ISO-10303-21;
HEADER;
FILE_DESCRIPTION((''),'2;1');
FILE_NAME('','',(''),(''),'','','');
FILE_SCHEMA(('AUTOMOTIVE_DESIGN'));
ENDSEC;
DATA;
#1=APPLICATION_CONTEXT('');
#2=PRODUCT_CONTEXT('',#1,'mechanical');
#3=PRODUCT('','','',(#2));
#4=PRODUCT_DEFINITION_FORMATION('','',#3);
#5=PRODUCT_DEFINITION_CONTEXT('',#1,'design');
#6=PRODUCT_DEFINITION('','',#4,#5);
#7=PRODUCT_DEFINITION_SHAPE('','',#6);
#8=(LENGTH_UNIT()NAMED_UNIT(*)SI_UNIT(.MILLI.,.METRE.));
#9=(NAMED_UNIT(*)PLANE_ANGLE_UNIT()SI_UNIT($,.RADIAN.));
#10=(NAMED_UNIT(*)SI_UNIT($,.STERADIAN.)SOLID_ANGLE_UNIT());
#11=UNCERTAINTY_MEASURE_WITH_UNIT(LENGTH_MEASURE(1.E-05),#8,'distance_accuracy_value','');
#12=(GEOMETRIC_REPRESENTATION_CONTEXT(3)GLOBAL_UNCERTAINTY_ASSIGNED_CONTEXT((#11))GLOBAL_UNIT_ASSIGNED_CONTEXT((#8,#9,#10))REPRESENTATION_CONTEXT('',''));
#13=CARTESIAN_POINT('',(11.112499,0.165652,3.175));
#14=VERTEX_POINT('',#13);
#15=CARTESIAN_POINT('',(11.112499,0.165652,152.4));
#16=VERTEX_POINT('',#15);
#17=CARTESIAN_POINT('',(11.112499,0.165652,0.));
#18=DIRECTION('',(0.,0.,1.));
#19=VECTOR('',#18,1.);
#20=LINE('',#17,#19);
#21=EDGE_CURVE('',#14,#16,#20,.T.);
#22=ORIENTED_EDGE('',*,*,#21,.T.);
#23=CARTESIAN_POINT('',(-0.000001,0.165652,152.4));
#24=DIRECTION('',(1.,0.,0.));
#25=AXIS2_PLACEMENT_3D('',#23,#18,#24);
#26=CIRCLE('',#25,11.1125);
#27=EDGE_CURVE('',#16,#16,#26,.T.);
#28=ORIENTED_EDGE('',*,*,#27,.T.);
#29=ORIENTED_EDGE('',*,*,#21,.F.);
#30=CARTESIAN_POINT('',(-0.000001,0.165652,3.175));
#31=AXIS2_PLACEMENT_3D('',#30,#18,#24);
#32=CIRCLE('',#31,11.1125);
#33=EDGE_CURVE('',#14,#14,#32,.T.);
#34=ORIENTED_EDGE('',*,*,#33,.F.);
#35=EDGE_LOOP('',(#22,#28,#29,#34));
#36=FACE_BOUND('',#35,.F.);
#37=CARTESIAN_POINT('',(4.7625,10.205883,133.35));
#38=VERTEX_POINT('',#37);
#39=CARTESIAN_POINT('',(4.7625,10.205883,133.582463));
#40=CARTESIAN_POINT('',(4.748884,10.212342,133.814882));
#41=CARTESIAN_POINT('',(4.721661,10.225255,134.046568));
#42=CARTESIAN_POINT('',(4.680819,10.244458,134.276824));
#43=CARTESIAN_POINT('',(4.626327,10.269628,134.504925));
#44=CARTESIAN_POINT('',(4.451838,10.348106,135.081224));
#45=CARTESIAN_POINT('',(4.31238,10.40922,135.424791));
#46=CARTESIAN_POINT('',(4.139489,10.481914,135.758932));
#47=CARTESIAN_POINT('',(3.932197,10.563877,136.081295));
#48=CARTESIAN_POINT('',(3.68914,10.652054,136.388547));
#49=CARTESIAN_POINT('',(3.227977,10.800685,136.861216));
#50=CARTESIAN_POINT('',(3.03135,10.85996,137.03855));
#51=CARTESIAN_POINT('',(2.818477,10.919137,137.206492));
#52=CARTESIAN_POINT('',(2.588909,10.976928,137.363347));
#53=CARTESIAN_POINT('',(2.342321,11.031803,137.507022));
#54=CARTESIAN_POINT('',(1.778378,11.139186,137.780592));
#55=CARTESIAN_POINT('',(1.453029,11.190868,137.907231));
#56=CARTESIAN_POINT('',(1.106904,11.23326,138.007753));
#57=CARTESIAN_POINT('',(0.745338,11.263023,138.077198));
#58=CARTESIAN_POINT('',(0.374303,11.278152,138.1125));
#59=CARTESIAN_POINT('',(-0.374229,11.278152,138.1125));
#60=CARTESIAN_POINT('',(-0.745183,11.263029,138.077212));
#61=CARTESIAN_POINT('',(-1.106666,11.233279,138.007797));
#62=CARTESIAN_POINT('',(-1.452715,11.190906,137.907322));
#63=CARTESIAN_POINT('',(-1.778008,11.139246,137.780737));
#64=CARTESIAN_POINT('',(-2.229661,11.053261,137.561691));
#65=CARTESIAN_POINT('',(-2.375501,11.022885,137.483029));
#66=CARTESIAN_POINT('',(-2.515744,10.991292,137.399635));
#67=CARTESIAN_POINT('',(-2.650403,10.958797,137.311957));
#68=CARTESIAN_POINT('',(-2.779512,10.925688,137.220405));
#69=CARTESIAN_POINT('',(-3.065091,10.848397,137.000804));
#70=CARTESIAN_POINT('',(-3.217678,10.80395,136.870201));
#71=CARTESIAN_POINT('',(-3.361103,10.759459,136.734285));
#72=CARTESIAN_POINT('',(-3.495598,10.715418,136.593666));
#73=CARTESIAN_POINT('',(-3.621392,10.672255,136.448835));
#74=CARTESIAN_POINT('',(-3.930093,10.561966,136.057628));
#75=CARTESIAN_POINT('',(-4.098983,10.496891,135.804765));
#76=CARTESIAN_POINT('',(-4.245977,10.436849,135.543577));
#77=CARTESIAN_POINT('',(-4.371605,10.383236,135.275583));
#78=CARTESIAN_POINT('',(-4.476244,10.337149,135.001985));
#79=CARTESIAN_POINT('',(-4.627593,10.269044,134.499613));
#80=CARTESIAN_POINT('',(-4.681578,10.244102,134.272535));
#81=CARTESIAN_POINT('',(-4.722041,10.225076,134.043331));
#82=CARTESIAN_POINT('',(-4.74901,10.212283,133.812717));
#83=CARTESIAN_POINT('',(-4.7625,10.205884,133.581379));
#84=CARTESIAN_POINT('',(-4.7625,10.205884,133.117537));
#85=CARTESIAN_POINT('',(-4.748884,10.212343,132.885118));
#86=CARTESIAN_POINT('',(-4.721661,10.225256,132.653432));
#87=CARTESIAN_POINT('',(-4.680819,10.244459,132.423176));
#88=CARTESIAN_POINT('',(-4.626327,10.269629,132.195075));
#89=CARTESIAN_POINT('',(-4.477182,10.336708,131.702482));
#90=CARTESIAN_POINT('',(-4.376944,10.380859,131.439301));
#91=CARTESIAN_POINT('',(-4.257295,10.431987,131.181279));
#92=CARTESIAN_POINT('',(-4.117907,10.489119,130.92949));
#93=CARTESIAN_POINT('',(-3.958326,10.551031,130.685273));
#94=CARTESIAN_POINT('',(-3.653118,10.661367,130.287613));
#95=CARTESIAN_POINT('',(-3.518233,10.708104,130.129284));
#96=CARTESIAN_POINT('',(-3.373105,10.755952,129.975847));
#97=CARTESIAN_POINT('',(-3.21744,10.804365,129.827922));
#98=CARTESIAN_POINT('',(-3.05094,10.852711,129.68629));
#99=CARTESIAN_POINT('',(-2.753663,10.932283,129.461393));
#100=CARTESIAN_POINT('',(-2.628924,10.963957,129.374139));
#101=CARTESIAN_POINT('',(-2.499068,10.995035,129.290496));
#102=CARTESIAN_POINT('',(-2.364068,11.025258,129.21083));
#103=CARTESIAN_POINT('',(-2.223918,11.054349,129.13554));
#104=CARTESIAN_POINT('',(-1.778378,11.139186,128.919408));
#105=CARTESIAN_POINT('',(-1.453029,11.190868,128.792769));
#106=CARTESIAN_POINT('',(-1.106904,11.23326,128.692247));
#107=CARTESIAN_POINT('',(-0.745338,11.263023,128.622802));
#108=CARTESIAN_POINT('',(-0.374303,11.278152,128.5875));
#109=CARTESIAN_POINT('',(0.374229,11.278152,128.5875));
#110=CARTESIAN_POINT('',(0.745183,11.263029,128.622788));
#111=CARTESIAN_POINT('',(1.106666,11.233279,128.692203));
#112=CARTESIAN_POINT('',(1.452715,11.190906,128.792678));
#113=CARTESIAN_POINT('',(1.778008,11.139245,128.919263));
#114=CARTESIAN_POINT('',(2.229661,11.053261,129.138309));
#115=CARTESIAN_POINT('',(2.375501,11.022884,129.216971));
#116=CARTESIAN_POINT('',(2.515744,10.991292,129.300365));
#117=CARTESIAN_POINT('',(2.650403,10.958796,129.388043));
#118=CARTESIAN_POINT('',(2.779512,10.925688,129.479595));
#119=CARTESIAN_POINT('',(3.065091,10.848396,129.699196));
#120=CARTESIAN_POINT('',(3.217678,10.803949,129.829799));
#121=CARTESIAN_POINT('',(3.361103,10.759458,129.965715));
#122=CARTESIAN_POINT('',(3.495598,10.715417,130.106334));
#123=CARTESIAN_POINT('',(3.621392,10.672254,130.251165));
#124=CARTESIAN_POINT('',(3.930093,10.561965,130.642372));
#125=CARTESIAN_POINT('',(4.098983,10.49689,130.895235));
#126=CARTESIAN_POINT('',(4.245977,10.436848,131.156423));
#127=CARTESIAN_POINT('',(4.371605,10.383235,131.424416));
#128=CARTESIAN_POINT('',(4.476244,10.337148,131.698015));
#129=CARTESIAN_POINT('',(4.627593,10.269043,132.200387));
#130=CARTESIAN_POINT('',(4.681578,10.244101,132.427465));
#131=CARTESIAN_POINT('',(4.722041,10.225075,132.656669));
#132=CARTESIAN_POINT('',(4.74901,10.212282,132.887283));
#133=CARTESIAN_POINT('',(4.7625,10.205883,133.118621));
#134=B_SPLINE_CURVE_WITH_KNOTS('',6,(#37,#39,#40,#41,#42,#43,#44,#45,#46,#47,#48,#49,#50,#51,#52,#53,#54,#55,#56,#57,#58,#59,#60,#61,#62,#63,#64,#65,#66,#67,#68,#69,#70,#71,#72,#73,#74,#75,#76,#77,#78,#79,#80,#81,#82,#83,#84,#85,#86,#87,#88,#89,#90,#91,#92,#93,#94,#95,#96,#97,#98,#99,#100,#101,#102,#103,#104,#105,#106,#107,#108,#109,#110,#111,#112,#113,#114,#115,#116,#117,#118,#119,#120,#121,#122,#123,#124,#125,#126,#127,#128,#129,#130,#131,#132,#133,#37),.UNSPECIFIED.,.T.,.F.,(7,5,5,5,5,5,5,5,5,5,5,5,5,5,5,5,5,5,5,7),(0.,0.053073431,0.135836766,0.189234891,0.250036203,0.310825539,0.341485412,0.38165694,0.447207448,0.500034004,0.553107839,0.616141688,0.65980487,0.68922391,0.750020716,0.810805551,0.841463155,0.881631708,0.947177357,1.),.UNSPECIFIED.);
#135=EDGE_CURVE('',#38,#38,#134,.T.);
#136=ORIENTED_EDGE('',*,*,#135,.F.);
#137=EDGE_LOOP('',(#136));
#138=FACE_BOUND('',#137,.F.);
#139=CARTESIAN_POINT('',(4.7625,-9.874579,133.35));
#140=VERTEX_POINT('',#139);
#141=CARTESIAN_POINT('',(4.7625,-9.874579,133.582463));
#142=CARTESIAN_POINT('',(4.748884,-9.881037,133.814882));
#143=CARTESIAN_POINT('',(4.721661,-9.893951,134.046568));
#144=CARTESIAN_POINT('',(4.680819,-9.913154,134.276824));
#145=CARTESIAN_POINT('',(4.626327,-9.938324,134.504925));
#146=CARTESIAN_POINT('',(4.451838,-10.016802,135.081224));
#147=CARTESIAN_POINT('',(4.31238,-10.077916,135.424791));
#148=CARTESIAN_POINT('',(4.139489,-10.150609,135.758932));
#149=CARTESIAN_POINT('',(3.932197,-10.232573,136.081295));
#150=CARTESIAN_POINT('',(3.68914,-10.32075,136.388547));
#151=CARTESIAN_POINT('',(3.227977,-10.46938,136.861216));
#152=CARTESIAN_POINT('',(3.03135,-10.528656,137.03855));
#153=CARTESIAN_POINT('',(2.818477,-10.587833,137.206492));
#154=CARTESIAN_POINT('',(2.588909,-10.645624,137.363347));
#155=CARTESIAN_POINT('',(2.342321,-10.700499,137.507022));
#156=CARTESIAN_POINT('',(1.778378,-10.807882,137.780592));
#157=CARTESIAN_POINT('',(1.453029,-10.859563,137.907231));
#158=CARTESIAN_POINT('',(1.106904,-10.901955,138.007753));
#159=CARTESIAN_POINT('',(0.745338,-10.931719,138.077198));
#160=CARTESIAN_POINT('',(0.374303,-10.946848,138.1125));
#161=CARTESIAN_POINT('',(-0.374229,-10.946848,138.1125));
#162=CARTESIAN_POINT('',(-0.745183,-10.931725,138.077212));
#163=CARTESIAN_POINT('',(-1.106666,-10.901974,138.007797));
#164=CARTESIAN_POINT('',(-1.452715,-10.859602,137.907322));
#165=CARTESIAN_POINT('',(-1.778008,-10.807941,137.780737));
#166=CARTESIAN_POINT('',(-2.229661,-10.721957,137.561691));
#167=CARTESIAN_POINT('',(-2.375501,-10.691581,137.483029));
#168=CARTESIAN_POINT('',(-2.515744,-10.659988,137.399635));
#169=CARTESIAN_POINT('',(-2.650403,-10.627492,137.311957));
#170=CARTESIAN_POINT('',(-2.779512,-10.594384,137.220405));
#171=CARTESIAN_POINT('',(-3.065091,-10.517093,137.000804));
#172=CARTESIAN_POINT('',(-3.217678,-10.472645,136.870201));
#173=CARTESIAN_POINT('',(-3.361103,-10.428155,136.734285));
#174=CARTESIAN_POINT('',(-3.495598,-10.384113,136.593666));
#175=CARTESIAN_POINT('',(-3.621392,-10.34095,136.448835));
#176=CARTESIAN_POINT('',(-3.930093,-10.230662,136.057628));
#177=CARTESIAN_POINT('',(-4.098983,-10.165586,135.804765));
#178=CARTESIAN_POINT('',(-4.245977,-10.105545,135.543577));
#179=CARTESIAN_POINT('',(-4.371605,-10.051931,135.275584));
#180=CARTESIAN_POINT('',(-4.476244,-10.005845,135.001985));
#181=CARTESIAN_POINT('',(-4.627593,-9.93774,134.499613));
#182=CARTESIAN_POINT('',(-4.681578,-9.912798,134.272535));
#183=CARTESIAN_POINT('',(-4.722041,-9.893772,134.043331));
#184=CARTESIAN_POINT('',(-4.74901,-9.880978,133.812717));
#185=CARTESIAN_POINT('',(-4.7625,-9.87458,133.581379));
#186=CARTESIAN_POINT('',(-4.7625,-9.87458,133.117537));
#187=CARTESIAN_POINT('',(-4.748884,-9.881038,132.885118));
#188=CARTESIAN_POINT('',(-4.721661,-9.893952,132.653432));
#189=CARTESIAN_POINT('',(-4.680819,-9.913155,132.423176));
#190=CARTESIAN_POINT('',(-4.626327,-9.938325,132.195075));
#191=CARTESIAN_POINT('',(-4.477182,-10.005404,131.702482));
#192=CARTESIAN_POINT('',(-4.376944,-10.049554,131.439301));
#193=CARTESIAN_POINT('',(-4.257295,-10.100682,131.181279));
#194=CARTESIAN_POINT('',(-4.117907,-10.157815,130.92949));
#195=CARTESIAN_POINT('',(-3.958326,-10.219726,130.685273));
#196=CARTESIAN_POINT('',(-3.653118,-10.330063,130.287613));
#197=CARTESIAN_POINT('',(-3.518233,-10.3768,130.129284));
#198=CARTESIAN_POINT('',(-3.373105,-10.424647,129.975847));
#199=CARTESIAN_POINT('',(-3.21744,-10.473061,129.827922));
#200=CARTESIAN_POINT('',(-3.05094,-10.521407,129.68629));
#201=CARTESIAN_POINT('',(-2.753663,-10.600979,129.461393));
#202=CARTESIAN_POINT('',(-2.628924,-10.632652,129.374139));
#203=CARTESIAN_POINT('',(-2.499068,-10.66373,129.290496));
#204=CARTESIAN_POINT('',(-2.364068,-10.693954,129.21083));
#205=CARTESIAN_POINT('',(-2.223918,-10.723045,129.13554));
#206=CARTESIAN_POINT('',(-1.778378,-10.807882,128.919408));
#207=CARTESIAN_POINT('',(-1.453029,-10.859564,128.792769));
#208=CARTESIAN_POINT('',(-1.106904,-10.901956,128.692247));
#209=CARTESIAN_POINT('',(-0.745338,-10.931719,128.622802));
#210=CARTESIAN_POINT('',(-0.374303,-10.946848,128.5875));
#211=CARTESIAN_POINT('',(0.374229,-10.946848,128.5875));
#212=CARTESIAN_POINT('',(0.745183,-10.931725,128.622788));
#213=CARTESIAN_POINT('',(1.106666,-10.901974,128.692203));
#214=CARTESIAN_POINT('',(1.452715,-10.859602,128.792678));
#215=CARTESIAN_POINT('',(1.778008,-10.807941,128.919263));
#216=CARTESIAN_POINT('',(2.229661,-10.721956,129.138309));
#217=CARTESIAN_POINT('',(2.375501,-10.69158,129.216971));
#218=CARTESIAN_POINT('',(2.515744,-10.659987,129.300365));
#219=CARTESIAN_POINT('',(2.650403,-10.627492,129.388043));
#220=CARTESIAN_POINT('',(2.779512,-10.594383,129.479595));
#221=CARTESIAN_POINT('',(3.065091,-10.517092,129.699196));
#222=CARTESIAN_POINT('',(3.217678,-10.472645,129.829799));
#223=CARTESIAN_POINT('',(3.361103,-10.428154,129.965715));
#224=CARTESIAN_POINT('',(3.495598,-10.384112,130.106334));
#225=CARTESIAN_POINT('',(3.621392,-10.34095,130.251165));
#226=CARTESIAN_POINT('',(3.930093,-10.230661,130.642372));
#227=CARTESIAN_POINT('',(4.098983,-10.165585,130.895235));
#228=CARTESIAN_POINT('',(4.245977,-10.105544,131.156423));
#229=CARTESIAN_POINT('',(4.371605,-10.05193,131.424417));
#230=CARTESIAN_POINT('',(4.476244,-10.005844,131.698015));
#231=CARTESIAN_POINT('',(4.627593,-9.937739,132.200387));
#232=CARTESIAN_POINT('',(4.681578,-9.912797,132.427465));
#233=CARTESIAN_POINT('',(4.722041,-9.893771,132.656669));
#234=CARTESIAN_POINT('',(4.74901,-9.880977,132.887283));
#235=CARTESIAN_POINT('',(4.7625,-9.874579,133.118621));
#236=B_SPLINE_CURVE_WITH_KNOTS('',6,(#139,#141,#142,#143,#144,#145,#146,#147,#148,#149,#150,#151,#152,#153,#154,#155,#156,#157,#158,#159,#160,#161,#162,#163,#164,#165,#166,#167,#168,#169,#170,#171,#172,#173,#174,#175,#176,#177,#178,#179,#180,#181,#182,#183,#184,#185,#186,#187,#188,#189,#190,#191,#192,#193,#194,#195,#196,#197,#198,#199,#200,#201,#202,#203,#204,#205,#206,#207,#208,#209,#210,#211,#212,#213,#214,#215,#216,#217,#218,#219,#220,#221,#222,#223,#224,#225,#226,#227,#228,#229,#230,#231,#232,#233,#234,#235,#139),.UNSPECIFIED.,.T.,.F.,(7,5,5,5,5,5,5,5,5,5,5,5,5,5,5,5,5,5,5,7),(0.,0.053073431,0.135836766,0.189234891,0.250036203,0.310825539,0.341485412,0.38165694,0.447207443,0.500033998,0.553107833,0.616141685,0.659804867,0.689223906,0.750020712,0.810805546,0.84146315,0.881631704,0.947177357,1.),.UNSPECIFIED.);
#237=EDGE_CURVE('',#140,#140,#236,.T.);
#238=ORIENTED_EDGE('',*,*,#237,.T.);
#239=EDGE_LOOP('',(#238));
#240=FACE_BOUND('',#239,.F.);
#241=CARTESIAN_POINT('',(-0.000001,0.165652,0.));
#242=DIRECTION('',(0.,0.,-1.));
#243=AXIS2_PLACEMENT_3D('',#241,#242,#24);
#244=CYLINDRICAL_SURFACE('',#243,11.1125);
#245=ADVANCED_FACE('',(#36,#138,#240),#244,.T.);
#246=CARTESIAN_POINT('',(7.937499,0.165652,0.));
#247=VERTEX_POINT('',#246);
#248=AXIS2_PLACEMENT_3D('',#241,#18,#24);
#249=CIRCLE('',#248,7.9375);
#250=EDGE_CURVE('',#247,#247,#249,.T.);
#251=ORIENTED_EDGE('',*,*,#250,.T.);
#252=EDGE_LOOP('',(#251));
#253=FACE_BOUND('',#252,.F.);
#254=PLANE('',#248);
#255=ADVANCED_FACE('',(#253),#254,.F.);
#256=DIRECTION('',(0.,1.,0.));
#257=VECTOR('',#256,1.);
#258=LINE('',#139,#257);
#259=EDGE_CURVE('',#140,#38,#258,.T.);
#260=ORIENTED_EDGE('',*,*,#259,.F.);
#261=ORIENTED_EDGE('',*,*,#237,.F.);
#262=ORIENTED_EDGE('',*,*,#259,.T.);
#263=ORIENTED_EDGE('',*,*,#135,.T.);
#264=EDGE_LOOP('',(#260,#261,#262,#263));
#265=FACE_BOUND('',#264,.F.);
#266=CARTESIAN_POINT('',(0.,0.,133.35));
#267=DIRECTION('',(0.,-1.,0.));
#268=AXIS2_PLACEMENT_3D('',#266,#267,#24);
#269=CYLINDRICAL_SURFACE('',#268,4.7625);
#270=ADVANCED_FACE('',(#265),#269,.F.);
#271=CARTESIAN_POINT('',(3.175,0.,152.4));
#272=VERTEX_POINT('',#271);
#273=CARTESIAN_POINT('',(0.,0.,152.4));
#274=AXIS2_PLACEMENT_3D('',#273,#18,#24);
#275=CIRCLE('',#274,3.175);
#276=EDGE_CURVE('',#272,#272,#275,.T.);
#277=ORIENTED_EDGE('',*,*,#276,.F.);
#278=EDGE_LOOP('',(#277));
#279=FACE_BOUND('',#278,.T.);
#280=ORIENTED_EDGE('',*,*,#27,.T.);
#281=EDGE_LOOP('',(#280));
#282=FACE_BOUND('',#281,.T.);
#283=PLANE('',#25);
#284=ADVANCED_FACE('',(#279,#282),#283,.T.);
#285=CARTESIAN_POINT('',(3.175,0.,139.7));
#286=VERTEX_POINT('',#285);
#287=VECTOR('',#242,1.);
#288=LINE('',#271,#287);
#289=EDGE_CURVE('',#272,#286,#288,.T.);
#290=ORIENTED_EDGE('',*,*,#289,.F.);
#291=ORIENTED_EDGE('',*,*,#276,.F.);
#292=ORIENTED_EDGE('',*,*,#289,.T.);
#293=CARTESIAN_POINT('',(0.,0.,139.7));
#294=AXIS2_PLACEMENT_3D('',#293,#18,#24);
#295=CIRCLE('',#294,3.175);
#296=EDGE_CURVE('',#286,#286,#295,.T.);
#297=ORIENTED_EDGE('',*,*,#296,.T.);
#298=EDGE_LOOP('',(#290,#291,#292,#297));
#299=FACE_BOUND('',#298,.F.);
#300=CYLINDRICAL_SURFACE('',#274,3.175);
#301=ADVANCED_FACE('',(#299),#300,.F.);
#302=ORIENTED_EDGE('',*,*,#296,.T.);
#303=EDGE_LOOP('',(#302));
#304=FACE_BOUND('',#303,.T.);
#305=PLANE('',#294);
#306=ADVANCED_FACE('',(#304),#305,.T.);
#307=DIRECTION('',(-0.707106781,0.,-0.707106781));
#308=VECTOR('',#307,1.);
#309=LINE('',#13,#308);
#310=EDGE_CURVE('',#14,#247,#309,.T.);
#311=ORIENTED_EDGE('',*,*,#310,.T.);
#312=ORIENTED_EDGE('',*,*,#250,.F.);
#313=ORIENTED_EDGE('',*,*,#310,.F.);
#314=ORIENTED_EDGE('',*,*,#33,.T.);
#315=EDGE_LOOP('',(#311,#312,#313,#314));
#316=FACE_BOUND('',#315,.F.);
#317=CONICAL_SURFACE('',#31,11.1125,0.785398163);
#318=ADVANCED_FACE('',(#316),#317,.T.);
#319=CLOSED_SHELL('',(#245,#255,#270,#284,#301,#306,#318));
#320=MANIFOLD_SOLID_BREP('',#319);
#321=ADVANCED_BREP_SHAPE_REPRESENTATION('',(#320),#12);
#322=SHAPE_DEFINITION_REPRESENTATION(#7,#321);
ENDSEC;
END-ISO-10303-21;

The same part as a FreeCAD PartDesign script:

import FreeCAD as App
import Part
import Sketcher

V = App.Vector
Q = App.Units.Quantity


def edges_at(feature, points):
    """Names of the edges that pass closest to the given points."""
    edges = feature.Shape.Edges
    near = lambda p: min(range(len(edges)), key=lambda i: edges[i].distToShape(Part.Vertex(*p))[0])
    return sorted({f"Edge{near(p) + 1}" for p in points})

doc = App.newDocument("Part")
body = doc.addObject("PartDesign::Body", "Body")

# Sketch on XY plane
sketch1 = doc.addObject("Sketcher::SketchObject", "Sketch")
body.addObject(sketch1)
sketch1.AttachmentSupport = (doc.XY_Plane, [""])
sketch1.MapMode = "FlatFace"
sketch1.addGeometry(Part.Circle(V(-0.000001, 0.165652, 0), V(0, 0, 1), 11.1125), False)
sketch1.addConstraint([
    Sketcher.Constraint("PointOnObject", 0, 3, -2),
    Sketcher.Constraint("Diameter", 0, Q("0.875 in")),
    Sketcher.Constraint("DistanceY", -1, 1, 0, 3, Q("0.165652 mm")),
])
pad1 = doc.addObject("PartDesign::Pad", "Pad")
body.addObject(pad1)
pad1.Profile = sketch1
pad1.Length = Q("6 in")
doc.recompute()

chamfer = doc.addObject("PartDesign::Chamfer", "Chamfer")
body.addObject(chamfer)
chamfer.Base = (pad1, edges_at(pad1, [(-11.113, 0.166, 0)]))
chamfer.Size = Q("0.125 in")

# Sketch on XZ plane
sketch2 = doc.addObject("Sketcher::SketchObject", "Sketch001")
body.addObject(sketch2)
sketch2.AttachmentSupport = (doc.XZ_Plane, [""])
sketch2.MapMode = "FlatFace"
sketch2.addGeometry(Part.Circle(V(0, 133.35, 0), V(0, 0, 1), 4.7625), False)
sketch2.addConstraint([
    Sketcher.Constraint("PointOnObject", 0, 3, -2),
    Sketcher.Constraint("Diameter", 0, Q("0.375 in")),
    Sketcher.Constraint("DistanceY", -1, 1, 0, 3, Q("5.25 in")),
])
pocket1 = doc.addObject("PartDesign::Pocket", "Pocket")
body.addObject(pocket1)
pocket1.Profile = sketch2
pocket1.Type = "ThroughAll"
pocket1.Midplane = True

# Sketch on XY plane
sketch3 = doc.addObject("Sketcher::SketchObject", "Sketch002")
body.addObject(sketch3)
sketch3.AttachmentSupport = (doc.XY_Plane, [""])
sketch3.MapMode = "FlatFace"
sketch3.AttachmentOffset = App.Placement(V(0, 0, 6 * 25.4), App.Rotation())
sketch3.addGeometry(Part.Circle(V(0, 0, 0), V(0, 0, 1), 3.175), False)
sketch3.addConstraint([
    Sketcher.Constraint("Coincident", 0, 3, -1, 1),
    Sketcher.Constraint("Diameter", 0, Q("0.25 in")),
])
pocket2 = doc.addObject("PartDesign::Pocket", "Pocket001")
body.addObject(pocket2)
pocket2.Profile = sketch3
pocket2.Length = Q("0.5 in")

doc.recompute()
